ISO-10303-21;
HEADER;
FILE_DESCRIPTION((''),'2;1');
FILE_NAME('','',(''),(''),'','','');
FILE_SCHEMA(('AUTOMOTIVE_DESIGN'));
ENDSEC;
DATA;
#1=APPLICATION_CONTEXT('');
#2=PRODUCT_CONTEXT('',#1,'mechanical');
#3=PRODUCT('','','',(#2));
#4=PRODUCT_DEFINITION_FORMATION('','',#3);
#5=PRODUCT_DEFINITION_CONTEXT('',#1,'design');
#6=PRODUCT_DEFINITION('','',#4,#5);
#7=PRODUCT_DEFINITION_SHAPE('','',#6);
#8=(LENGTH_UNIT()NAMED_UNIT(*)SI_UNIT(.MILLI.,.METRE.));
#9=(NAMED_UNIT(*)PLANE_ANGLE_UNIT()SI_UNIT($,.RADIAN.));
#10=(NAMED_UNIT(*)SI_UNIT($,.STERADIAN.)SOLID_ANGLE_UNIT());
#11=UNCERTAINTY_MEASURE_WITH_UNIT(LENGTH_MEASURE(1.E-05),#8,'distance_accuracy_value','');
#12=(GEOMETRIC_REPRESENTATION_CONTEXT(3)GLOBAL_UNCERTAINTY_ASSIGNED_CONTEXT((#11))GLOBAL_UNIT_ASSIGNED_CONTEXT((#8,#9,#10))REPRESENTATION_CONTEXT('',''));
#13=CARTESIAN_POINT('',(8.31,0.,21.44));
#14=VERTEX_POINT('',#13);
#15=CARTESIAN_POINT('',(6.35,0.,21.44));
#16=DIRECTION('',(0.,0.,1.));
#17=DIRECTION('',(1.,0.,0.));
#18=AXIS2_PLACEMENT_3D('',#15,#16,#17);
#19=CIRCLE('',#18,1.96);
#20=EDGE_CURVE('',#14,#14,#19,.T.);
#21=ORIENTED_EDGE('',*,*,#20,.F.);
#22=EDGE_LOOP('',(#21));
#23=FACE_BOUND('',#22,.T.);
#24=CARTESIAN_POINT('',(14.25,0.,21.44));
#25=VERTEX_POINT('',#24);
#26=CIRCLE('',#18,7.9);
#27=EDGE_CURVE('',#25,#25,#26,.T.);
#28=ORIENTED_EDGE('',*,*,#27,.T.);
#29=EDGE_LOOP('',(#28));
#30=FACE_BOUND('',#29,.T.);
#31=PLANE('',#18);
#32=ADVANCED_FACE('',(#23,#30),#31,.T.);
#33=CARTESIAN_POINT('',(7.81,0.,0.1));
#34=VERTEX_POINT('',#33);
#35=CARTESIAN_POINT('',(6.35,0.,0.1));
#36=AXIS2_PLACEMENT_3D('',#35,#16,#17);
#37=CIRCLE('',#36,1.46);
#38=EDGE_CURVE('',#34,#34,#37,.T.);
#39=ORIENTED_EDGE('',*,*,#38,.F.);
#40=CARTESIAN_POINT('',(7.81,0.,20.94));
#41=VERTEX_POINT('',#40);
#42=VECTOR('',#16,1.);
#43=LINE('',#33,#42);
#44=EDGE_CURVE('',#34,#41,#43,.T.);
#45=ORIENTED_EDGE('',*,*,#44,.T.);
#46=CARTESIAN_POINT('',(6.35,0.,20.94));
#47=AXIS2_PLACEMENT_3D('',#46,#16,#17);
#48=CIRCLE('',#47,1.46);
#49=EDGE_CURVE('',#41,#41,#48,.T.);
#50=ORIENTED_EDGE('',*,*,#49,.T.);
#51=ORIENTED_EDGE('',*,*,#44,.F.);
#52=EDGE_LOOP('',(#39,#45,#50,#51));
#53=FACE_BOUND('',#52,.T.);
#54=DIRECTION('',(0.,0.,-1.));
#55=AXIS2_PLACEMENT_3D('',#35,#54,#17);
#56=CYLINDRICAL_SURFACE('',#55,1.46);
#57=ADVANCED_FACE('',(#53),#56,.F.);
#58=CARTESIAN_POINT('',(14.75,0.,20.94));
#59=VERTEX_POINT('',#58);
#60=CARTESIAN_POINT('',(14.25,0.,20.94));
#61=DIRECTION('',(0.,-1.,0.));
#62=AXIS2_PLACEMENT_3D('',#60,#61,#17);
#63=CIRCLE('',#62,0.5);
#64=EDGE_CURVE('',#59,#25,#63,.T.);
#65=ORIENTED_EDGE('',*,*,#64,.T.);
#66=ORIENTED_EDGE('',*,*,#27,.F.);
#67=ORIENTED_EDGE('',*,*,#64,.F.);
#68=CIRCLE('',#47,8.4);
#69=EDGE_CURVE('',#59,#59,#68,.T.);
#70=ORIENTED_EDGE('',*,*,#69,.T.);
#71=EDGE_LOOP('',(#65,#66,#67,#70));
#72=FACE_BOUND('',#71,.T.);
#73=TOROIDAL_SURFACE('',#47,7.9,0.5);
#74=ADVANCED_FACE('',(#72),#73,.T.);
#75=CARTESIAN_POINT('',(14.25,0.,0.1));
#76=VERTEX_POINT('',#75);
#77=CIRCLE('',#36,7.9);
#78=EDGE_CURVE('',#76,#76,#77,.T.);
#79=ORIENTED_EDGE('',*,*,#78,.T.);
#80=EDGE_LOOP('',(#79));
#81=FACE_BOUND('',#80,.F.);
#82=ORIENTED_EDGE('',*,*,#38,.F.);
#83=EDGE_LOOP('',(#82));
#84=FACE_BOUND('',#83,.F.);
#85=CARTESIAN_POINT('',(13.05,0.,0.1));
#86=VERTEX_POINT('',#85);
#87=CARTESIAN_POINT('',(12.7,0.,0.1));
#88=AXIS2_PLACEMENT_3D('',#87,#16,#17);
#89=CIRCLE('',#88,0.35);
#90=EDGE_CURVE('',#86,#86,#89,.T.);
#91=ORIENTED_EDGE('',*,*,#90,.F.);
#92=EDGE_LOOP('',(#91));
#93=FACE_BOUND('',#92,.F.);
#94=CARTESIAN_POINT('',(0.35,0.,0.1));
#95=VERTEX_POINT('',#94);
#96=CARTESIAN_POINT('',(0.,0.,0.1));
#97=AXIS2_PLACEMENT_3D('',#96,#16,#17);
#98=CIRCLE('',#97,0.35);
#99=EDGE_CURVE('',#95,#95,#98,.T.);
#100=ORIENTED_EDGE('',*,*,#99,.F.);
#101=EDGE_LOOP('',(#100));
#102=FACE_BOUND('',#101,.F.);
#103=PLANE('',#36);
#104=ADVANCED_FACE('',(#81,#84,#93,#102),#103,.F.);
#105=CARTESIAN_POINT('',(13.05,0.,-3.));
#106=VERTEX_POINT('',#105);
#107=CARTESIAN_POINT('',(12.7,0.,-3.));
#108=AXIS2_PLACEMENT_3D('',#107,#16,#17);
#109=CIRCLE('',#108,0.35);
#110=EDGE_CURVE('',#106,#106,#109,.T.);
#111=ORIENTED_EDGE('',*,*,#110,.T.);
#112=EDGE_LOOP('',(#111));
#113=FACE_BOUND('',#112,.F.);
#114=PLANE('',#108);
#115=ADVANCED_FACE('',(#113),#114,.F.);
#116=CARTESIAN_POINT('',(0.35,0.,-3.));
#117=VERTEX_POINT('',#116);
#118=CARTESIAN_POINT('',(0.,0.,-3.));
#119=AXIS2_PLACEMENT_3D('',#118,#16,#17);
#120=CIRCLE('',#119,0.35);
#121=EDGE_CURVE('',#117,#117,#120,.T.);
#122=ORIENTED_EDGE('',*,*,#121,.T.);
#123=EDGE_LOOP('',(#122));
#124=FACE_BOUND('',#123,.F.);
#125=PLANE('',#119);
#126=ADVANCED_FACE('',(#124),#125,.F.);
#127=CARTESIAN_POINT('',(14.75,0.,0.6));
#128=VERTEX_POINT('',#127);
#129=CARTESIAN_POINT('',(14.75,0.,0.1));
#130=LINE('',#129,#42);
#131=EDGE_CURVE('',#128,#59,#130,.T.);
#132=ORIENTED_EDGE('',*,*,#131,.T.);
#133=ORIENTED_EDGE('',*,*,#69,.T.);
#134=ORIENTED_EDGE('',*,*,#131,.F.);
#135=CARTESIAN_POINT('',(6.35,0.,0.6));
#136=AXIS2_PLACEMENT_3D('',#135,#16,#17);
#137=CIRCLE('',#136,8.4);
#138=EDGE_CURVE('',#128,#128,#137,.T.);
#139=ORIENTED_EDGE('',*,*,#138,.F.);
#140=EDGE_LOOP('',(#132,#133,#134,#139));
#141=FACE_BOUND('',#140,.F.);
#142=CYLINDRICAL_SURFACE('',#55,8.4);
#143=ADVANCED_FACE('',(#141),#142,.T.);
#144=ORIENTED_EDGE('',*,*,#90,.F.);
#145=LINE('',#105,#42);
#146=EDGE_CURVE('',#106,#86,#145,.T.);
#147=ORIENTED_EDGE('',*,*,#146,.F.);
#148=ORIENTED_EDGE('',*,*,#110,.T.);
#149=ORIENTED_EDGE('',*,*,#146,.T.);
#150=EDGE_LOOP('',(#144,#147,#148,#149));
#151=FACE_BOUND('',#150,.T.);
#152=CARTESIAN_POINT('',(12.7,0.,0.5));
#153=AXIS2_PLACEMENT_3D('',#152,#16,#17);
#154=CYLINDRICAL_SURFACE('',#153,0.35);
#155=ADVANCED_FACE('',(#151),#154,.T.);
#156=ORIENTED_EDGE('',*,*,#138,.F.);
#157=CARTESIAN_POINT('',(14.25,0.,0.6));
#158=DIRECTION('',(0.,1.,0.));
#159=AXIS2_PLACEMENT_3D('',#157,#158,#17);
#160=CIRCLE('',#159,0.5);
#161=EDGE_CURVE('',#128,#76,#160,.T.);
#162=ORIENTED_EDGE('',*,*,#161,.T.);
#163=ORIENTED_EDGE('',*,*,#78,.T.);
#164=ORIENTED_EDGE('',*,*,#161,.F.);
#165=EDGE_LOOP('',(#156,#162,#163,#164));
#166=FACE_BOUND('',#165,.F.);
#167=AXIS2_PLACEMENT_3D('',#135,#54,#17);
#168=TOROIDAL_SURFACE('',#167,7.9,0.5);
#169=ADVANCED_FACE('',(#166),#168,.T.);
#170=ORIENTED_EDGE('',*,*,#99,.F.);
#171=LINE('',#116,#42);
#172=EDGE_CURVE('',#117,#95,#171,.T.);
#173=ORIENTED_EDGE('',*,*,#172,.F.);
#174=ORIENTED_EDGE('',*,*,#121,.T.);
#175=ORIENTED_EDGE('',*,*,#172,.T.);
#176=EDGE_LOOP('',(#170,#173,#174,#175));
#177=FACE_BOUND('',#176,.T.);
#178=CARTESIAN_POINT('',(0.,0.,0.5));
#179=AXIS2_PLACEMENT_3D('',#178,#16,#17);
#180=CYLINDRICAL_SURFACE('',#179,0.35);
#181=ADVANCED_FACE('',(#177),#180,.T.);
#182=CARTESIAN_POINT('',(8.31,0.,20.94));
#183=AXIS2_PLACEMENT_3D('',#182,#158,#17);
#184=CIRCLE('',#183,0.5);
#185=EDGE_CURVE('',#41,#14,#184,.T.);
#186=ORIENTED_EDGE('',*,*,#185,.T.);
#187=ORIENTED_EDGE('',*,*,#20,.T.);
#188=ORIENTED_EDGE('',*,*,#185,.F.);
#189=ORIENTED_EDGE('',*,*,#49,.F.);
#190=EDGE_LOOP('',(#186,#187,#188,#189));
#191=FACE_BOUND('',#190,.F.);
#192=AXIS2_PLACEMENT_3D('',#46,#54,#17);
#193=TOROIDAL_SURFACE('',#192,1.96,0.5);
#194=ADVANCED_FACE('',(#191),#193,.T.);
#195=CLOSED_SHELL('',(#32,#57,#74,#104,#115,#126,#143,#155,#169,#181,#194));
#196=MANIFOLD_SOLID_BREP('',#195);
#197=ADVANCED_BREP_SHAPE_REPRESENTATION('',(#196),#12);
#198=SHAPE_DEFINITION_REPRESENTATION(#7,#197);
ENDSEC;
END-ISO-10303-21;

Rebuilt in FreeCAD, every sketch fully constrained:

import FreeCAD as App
import Part
import Sketcher


def edges_at(feature, points):
    """Names of the edges that pass closest to the given points."""
    edges = feature.Shape.Edges
    near = lambda p: min(range(len(edges)), key=lambda i: edges[i].distToShape(Part.Vertex(*p))[0])
    return sorted({f"Edge{near(p) + 1}" for p in points})

doc = App.newDocument("Part")
params = doc.addObject("Spreadsheet::Sheet", "Params")
for row, (alias, value) in enumerate([
    ("sketch1_diameter", "16.8 mm"),
    ("sketch1_diameter2", "2.92 mm"),
    ("pad1_length", "21.34 mm"),
    ("fillet_radius", "0.5 mm"),
    ("sketch2_diameter", "0.7 mm"),
    ("pad2_length", "10.67 mm"),
    ("pad2_length2", "3.5 mm"),
], start=1):
    params.set(f"A{row}", alias)
    params.set(f"B{row}", "=" + value)
    params.setAlias(f"B{row}", alias)

body = doc.addObject("PartDesign::Body", "Body")

sketch1 = body.newObject("Sketcher::SketchObject", "Sketch")
sketch1.AttachmentSupport = (doc.getObject("XY_Plane"), [""])
sketch1.MapMode = "FlatFace"
sketch1.AttachmentOffset = App.Placement(App.Vector(0, 0, 0.1), App.Rotation())
sketch1.addGeometry(Part.Circle(App.Vector(6.3, 0, 0), App.Vector(0, 0, 1), 8.4), False)
sketch1.addGeometry(Part.Circle(App.Vector(6.3, 0, 0), App.Vector(0, 0, 1), 1.5), False)
sketch1.addConstraint(Sketcher.Constraint("Coincident", 1, 3, 0, 3))
sketch1.addConstraint(Sketcher.Constraint("PointOnObject", 0, 3, -1))
sketch1.addConstraint(Sketcher.Constraint("Diameter", 0, 16.8))
sketch1.addConstraint(Sketcher.Constraint("Diameter", 1, 2.92))
sketch1.addConstraint(Sketcher.Constraint("DistanceX", -1, 1, 0, 3, 6.35))
sketch1.setExpression("Constraints[2]", "Params.sketch1_diameter")
sketch1.setExpression("Constraints[3]", "Params.sketch1_diameter2")
pad1 = body.newObject("PartDesign::Pad", "Pad")
pad1.Profile = sketch1
pad1.setExpression("Length", "Params.pad1_length")
doc.recompute()

fillet = body.newObject("PartDesign::Fillet", "Fillet")
fillet.Base = (pad1, edges_at(pad1, [(4.89, 0, 21.44), (-2.05, 0, 21.44), (-2.05, 0, 0.1)]))
fillet.setExpression("Radius", "Params.fillet_radius")
body2 = doc.addObject("PartDesign::Body", "Body001")
body2.AllowCompound = True

sketch2 = body2.newObject("Sketcher::SketchObject", "Sketch001")
sketch2.AttachmentSupport = (doc.getObject("XY_Plane001"), [""])
sketch2.MapMode = "FlatFace"
sketch2.AttachmentOffset = App.Placement(App.Vector(0, 0, 0.5), App.Rotation())
sketch2.addGeometry(Part.Circle(App.Vector(0, 0, 0), App.Vector(0, 0, 1), 0.35), False)
sketch2.addGeometry(Part.Circle(App.Vector(12.7, 0, 0), App.Vector(0, 0, 1), 0.35), False)
sketch2.addConstraint(Sketcher.Constraint("Coincident", 0, 3, -1, 1))
sketch2.addConstraint(Sketcher.Constraint("Equal", 0, 1))
sketch2.addConstraint(Sketcher.Constraint("PointOnObject", 1, 3, -1))
sketch2.addConstraint(Sketcher.Constraint("Diameter", 0, 0.7))
sketch2.addConstraint(Sketcher.Constraint("DistanceX", -1, 1, 1, 3, 12.7))
sketch2.setExpression("Constraints[3]", "Params.sketch2_diameter")
pad2 = body2.newObject("PartDesign::Pad", "Pad001")
pad2.Profile = sketch2
pad2.Type = "TwoLengths"
pad2.setExpression("Length", "Params.pad2_length")
pad2.setExpression("Length2", "Params.pad2_length2")
doc.recompute()

boolean = body2.newObject("PartDesign::Boolean", "Boolean")
boolean.Type = "Fuse"
boolean.addObjects([body])

doc.recompute()
